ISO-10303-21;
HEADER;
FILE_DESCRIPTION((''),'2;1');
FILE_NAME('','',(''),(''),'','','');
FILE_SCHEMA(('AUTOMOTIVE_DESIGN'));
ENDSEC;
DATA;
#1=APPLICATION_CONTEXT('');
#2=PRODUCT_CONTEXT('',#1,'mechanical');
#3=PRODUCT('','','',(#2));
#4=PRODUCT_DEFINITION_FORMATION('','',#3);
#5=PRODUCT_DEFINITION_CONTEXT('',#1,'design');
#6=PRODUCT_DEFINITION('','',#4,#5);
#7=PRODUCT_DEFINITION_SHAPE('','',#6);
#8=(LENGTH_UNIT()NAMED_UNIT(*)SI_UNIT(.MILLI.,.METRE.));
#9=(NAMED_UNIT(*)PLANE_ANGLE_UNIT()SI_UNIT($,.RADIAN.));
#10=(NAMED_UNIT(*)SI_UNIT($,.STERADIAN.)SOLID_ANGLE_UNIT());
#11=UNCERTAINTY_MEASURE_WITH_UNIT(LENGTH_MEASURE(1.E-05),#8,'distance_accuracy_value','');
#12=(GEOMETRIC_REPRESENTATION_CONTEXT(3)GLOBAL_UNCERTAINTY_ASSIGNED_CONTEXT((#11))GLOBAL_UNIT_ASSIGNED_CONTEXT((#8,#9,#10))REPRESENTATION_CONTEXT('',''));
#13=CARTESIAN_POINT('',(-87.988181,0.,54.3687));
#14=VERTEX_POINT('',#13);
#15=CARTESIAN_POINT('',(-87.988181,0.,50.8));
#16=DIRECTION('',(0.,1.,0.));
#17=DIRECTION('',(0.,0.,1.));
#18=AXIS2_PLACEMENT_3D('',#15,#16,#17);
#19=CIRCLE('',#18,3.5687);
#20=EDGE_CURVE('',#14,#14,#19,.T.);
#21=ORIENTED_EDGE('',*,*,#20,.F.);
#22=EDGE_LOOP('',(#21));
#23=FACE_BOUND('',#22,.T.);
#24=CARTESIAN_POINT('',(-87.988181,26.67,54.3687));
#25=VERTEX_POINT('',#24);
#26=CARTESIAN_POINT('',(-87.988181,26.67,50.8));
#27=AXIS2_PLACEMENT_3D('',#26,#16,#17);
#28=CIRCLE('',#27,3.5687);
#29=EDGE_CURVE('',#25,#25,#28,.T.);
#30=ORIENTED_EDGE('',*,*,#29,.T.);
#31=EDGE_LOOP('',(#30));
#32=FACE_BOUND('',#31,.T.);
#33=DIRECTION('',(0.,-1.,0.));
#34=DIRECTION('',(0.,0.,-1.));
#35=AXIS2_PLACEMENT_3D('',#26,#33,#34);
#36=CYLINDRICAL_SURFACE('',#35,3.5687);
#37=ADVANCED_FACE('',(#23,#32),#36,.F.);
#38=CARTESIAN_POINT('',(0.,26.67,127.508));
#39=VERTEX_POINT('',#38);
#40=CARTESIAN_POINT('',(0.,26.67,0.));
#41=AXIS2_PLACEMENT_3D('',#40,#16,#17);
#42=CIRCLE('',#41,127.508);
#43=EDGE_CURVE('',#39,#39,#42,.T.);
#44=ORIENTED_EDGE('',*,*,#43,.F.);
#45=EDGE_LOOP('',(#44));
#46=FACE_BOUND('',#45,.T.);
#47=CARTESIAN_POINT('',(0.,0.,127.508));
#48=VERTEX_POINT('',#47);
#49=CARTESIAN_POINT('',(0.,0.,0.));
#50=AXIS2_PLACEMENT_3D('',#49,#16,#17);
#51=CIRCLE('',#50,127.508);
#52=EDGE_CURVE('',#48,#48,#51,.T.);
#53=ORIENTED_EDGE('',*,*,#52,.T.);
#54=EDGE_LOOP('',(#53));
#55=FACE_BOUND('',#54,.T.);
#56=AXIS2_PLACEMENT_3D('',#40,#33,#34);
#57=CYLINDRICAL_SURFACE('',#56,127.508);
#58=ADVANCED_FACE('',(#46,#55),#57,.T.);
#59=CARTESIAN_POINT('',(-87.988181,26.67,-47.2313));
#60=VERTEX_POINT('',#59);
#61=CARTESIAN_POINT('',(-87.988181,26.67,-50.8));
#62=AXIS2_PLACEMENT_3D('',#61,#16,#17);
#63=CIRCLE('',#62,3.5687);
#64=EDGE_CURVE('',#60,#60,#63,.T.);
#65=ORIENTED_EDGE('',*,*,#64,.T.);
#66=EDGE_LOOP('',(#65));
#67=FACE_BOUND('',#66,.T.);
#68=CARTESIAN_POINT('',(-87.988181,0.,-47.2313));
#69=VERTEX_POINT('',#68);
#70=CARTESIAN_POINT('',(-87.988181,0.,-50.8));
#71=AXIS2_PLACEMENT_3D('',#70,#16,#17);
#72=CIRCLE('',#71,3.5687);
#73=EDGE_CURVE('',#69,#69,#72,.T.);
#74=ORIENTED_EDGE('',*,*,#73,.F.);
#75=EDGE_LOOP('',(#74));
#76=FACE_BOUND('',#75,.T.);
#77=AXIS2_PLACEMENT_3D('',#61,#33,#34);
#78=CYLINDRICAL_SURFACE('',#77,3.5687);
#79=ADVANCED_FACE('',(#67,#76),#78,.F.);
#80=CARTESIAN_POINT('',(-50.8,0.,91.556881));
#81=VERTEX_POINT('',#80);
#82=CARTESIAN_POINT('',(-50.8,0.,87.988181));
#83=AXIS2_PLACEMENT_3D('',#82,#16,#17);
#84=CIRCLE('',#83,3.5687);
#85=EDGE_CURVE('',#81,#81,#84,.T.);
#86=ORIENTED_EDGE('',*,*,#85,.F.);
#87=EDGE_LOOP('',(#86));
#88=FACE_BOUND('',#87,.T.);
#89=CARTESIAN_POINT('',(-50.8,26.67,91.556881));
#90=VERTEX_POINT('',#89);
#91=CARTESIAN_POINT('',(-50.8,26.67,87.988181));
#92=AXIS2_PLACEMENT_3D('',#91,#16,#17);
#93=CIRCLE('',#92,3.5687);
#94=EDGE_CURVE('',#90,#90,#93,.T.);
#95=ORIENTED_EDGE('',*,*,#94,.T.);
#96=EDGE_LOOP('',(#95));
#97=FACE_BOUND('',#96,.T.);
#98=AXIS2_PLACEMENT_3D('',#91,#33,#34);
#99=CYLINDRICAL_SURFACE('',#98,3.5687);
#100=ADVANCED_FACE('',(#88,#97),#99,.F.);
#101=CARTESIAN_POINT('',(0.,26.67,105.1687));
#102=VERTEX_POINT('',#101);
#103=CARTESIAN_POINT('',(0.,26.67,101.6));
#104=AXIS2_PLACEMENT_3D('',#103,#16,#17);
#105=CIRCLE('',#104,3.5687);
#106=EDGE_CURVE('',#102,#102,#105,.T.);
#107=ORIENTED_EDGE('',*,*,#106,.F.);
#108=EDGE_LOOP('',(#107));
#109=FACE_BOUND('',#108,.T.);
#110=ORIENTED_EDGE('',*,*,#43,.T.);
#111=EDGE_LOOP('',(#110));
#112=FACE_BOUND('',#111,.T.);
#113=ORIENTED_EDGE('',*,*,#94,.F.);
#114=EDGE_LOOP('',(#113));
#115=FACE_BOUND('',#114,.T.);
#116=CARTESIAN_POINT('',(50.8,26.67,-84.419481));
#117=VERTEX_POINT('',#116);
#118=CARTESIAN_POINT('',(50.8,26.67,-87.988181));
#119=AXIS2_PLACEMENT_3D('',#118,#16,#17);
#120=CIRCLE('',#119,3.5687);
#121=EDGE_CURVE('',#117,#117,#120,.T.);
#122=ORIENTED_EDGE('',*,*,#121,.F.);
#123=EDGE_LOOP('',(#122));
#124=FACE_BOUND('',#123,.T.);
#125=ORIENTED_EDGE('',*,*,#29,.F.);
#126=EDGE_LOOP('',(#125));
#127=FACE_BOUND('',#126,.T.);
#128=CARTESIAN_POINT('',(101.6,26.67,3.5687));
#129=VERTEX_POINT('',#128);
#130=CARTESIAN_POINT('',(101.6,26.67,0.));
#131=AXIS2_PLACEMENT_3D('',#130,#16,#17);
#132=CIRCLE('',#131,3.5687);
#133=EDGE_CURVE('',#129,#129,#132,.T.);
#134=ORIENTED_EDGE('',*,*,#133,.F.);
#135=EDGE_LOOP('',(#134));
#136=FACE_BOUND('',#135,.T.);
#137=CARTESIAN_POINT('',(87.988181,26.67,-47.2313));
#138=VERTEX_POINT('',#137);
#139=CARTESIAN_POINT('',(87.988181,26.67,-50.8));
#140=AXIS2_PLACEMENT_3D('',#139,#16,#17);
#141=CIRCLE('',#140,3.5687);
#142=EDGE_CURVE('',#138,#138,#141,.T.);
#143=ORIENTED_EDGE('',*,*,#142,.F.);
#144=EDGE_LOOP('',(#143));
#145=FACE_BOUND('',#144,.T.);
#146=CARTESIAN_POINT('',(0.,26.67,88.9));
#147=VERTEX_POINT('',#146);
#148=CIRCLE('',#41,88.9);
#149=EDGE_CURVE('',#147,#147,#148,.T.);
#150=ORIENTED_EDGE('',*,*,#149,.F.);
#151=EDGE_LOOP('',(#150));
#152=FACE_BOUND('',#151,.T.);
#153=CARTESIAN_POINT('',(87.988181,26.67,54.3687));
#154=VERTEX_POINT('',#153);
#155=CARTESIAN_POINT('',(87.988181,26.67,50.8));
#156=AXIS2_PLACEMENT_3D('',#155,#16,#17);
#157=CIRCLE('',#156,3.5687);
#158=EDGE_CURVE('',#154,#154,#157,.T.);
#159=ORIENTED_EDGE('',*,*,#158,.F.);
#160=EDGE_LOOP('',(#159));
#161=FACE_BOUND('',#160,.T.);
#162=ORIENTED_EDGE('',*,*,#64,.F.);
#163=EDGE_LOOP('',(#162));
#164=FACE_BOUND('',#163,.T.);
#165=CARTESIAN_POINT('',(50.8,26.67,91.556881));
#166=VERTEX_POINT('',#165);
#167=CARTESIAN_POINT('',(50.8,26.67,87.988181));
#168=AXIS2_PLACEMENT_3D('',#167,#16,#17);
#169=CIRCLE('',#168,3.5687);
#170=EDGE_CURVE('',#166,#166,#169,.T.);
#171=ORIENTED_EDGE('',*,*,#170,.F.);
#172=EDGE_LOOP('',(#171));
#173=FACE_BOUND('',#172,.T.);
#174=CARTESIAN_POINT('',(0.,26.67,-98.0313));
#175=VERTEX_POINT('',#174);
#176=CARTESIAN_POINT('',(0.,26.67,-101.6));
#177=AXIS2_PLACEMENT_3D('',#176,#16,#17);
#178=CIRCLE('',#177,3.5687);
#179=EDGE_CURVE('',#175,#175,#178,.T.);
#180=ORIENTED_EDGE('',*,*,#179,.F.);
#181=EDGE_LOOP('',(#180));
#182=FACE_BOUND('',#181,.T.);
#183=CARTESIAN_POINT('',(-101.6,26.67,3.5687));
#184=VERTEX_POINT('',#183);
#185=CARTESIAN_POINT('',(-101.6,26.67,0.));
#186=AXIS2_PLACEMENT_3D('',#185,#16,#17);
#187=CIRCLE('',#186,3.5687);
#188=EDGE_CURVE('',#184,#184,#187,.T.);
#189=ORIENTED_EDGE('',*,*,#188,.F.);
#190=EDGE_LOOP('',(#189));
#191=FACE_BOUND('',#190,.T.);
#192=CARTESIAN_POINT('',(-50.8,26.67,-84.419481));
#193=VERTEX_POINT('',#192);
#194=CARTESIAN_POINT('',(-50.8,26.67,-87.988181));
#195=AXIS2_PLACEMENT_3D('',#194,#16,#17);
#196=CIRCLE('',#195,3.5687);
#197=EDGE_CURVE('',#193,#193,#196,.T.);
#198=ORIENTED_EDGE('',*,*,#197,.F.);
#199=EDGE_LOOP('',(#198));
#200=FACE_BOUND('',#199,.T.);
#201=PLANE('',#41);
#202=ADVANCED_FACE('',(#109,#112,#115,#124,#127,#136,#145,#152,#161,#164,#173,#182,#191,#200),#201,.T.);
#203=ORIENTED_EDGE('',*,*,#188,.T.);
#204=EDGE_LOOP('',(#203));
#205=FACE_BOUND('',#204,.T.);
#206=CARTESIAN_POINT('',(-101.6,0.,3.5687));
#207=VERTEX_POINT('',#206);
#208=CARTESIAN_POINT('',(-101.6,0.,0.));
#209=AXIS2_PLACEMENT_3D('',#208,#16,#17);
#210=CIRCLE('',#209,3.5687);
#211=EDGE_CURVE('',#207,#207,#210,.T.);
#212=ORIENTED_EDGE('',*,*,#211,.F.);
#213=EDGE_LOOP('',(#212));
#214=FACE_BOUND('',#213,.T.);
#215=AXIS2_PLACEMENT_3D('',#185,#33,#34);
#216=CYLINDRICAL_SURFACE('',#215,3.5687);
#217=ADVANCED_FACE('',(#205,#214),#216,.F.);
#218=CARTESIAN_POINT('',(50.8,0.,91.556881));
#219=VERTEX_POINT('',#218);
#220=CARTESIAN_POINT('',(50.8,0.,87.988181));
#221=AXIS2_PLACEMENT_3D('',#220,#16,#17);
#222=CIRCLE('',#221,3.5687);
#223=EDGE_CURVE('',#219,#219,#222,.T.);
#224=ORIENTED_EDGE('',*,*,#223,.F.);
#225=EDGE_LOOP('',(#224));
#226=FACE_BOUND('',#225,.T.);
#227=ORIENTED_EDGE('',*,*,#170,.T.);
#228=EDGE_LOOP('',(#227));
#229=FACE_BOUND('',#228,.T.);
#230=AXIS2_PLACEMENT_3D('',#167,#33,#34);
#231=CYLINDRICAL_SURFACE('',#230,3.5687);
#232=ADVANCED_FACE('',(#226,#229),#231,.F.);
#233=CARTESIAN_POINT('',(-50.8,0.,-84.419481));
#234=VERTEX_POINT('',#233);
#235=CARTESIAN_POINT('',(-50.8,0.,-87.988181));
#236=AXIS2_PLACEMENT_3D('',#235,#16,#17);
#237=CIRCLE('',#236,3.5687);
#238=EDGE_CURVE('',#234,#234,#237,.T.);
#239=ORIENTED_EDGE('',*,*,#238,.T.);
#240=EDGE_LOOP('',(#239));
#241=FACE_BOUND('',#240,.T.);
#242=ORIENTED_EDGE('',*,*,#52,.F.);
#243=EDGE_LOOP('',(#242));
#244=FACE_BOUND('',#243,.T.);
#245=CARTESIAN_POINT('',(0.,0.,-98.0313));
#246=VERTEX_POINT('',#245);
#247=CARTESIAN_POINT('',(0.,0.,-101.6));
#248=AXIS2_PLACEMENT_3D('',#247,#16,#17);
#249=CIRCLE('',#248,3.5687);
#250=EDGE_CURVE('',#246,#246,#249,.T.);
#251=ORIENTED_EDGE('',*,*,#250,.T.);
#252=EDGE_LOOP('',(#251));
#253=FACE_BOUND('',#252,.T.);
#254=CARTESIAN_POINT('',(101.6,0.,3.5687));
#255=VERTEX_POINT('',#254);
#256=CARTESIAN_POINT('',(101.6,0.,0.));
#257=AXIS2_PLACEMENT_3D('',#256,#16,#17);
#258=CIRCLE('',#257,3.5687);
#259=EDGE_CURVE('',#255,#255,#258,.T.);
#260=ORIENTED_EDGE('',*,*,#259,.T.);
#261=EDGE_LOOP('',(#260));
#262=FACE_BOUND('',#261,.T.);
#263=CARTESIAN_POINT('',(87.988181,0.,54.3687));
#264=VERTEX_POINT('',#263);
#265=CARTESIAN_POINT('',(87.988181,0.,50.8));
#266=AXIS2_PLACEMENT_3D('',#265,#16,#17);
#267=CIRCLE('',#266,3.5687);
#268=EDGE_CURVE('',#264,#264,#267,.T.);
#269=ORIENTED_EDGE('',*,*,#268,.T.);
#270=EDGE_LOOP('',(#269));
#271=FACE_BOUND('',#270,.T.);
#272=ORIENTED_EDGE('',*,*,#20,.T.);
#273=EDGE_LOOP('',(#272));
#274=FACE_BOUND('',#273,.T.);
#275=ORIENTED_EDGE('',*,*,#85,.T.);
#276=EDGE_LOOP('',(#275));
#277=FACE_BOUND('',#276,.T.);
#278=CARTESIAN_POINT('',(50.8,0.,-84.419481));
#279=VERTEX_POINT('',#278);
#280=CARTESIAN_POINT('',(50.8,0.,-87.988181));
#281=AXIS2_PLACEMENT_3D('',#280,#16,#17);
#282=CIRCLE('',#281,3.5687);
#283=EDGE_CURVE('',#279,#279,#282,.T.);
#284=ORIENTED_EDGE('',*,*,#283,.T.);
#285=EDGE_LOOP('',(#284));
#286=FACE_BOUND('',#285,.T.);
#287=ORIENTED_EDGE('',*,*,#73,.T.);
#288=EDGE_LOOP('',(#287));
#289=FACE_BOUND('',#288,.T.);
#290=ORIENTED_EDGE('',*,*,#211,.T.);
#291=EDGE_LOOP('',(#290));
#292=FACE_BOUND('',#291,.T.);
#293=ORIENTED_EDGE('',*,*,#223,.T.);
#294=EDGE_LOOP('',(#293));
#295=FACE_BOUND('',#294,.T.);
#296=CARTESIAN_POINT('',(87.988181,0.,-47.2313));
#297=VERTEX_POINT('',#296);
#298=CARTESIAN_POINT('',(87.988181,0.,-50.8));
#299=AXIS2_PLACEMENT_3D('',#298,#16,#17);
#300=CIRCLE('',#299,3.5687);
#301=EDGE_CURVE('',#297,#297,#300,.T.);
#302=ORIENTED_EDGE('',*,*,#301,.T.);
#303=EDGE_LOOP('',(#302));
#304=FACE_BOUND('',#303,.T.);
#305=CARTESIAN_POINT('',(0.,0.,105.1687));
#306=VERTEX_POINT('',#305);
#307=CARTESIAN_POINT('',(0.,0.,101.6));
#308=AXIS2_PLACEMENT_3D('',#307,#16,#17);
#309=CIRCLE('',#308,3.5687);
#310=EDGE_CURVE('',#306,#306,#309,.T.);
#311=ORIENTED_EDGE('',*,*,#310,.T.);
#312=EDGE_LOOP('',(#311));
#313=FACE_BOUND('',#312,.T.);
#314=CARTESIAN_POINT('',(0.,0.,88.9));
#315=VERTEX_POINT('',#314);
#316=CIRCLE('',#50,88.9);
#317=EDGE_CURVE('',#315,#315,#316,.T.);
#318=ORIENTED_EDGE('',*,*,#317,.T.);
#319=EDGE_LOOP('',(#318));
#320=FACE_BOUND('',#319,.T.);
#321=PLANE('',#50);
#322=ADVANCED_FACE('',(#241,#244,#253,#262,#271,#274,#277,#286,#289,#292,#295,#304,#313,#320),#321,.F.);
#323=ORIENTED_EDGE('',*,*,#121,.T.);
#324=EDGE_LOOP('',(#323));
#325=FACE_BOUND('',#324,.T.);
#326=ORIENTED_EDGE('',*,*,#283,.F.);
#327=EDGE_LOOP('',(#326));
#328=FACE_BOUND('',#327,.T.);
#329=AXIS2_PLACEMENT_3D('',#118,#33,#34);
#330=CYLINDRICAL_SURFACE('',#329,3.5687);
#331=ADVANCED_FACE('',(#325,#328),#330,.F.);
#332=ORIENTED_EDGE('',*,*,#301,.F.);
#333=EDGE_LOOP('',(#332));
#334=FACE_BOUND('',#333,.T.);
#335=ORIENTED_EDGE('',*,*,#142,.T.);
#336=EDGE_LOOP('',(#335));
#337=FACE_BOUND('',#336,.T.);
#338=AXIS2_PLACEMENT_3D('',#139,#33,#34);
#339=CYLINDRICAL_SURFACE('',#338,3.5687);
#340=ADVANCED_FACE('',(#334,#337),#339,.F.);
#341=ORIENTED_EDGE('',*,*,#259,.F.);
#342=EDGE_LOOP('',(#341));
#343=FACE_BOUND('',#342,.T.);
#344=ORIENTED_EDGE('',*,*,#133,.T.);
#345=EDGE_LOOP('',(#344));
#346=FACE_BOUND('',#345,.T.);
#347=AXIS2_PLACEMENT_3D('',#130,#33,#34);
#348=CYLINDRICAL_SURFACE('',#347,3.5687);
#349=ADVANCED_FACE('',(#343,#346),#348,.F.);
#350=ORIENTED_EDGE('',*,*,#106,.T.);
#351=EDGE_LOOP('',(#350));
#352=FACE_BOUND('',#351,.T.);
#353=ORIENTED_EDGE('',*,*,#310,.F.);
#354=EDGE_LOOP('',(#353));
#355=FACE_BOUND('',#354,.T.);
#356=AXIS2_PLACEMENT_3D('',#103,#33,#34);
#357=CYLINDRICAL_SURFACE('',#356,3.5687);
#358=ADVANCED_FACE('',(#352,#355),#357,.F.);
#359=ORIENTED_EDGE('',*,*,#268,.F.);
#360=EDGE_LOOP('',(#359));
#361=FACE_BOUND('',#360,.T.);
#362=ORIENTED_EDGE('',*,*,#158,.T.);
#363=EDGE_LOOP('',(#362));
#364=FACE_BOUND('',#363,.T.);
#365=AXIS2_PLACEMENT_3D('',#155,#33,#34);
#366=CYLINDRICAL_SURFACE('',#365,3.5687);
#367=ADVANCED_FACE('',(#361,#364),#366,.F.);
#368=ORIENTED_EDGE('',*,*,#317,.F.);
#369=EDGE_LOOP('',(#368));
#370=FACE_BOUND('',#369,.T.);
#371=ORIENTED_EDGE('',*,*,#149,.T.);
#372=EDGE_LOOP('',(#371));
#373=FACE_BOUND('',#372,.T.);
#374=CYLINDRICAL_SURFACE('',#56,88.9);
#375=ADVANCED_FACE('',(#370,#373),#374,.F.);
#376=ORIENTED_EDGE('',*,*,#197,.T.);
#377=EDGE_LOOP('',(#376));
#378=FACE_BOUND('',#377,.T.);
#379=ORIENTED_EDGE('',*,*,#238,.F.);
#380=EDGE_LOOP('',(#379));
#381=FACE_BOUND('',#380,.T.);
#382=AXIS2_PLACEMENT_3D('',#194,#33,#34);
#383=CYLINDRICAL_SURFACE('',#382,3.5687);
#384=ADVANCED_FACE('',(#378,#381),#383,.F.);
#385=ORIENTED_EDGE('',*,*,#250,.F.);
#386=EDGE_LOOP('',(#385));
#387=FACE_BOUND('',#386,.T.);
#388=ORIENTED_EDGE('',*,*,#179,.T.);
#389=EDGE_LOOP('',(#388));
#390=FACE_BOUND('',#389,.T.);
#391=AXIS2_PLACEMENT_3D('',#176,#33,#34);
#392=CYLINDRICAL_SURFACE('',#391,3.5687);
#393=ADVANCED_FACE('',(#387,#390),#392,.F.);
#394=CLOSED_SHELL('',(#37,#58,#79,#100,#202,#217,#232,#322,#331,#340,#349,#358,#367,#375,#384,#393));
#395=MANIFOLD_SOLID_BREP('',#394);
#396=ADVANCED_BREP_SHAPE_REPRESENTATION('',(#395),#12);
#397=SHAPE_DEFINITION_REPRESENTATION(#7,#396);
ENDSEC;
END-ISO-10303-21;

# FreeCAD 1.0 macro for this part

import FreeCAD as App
import Part
import Sketcher
Q = App.Units.Quantity

doc = App.newDocument("Part")
body = doc.addObject("PartDesign::Body", "Body")

# Sketch on XZ plane
sketch1 = body.newObject("Sketcher::SketchObject", "Sketch")
sketch1.AttachmentSupport = (doc.getObject("XZ_Plane"), [""])
sketch1.MapMode = "FlatFace"
sketch1.addGeometry([
    Part.Circle(App.Vector(0, 0, 0), App.Vector(0, 0, 1), 127.5),  # 0
    Part.Circle(App.Vector(-50.8, 88, 0), App.Vector(0, 0, 1), 3.6),  # 1
    Part.Circle(App.Vector(-88, 50.8, 0), App.Vector(0, 0, 1), 3.6),  # 2
    Part.Circle(App.Vector(0, 101.6, 0), App.Vector(0, 0, 1), 3.6),  # 3
    Part.Circle(App.Vector(50.8, 88, 0), App.Vector(0, 0, 1), 3.6),  # 4
    Part.Circle(App.Vector(88, 50.8, 0), App.Vector(0, 0, 1), 3.6),  # 5
    Part.Circle(App.Vector(-101.6, 0, 0), App.Vector(0, 0, 1), 3.6),  # 6
    Part.Circle(App.Vector(-88, -50.8, 0), App.Vector(0, 0, 1), 3.6),  # 7
    Part.Circle(App.Vector(-50.8, -88, 0), App.Vector(0, 0, 1), 3.6),  # 8
    Part.Circle(App.Vector(0, 0, 0), App.Vector(0, 0, 1), 88.9),  # 9
    Part.Circle(App.Vector(101.6, 0, 0), App.Vector(0, 0, 1), 3.6),  # 10
    Part.Circle(App.Vector(88, -50.8, 0), App.Vector(0, 0, 1), 3.6),  # 11
    Part.Circle(App.Vector(0, -101.6, 0), App.Vector(0, 0, 1), 3.6),  # 12
    Part.Circle(App.Vector(50.8, -88, 0), App.Vector(0, 0, 1), 3.6),  # 13
], False)
sketch1.addConstraint([
    Sketcher.Constraint("Coincident", 0, 3, -1, 1),
    Sketcher.Constraint("Coincident", 9, 3, -1, 1),
    Sketcher.Constraint("Equal", 1, 2),
    Sketcher.Constraint("Equal", 2, 3),
    Sketcher.Constraint("Equal", 3, 4),
    Sketcher.Constraint("Equal", 4, 5),
    Sketcher.Constraint("Equal", 5, 6),
    Sketcher.Constraint("Equal", 6, 7),
    Sketcher.Constraint("Equal", 7, 8),
    Sketcher.Constraint("Equal", 8, 10),
    Sketcher.Constraint("Equal", 10, 11),
    Sketcher.Constraint("Equal", 11, 12),
    Sketcher.Constraint("Equal", 12, 13),
    Sketcher.Constraint("Symmetric", 5, 3, 7, 3, -1, 1),
    Sketcher.Constraint("Symmetric", 4, 3, 8, 3, -1, 1),
    Sketcher.Constraint("Symmetric", 6, 3, 10, 3, -1, 1),
    Sketcher.Constraint("Symmetric", 2, 3, 11, 3, -1, 1),
    Sketcher.Constraint("Symmetric", 3, 3, 12, 3, -1, 1),
    Sketcher.Constraint("Symmetric", 1, 3, 13, 3, -1, 1),
    Sketcher.Constraint("Symmetric", 1, 3, 4, 3, -2),
    Sketcher.Constraint("Symmetric", 2, 3, 5, 3, -2),
    Sketcher.Constraint("PointOnObject", 3, 3, -2),
    Sketcher.Constraint("PointOnObject", 6, 3, -1),
    Sketcher.Constraint("Diameter", 9, Q("7 in")),
    Sketcher.Constraint("Diameter", 0, Q("10.04 in")),
    Sketcher.Constraint("Diameter", 1, Q("0.281 in")),
    Sketcher.Constraint("DistanceX", 1, 3, -1, 1, Q("2 in")),
    Sketcher.Constraint("DistanceY", -1, 1, 2, 3, Q("2 in")),
    Sketcher.Constraint("DistanceY", -1, 1, 3, 3, Q("4 in")),
    Sketcher.Constraint("DistanceX", 6, 3, -1, 1, Q("4 in")),
    Sketcher.Constraint("DistanceY", -1, 1, 1, 3, 87.988181),
    Sketcher.Constraint("DistanceX", 2, 3, -1, 1, 87.988181),
])
pad1 = body.newObject("PartDesign::Pad", "Pad")
pad1.Profile = sketch1
pad1.Length = Q("1.05 in")
pad1.Reversed = True

doc.recompute()
